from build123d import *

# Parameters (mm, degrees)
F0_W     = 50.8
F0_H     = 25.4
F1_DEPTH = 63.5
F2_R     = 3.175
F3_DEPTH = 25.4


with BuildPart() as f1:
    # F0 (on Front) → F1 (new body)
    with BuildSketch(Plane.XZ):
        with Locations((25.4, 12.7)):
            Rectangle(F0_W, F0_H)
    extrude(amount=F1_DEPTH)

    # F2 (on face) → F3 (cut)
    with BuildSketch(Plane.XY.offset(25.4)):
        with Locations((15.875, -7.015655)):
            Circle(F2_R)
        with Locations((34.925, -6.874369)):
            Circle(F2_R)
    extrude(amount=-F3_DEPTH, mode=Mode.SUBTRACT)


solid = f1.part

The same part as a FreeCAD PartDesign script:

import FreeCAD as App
import Part
import Sketcher

V = App.Vector
Q = App.Units.Quantity


def add_polygon(sketch, points):
    """Adds a closed chain of lines whose ends are joined by coincident constraints."""
    first, n = sketch.GeometryCount, len(points)
    for a, b in zip(points, points[1:] + points[:1]):
        sketch.addGeometry(Part.LineSegment(App.Vector(*a, 0), App.Vector(*b, 0)), False)
    for i in range(n):
        sketch.addConstraint(Sketcher.Constraint("Coincident", first + i, 2, first + (i + 1) % n, 1))

doc = App.newDocument("Part")
body = doc.addObject("PartDesign::Body", "Body")

sketch1 = doc.addObject("Sketcher::SketchObject", "Sketch")
body.addObject(sketch1)
sketch1.AttachmentSupport = (doc.XZ_Plane, [""])
sketch1.MapMode = "FlatFace"
add_polygon(sketch1, [(0, 25.4), (0, 0), (50.8, 0), (50.8, 25.4)])
sketch1.addConstraint([
    Sketcher.Constraint("Vertical", 0),
    Sketcher.Constraint("Horizontal", 1),
    Sketcher.Constraint("Vertical", 2),
    Sketcher.Constraint("Horizontal", 3),
    Sketcher.Constraint("Coincident", 0, 2, -1, 1),
    Sketcher.Constraint("DistanceX", 1, 1, 1, 2, Q("2 in")),
    Sketcher.Constraint("DistanceY", 0, 2, 0, 1, Q("1 in")),
])
pad1 = doc.addObject("PartDesign::Pad", "Pad")
body.addObject(pad1)
pad1.Profile = sketch1
pad1.Length = Q("2.5 in")

sketch2 = doc.addObject("Sketcher::SketchObject", "Sketch001")
body.addObject(sketch2)
sketch2.AttachmentSupport = (doc.XY_Plane, [""])
sketch2.MapMode = "FlatFace"
sketch2.AttachmentOffset = App.Placement(V(0, 0, 1 * 25.4), App.Rotation())
sketch2.addGeometry([
    Part.Circle(V(15.875, -7.015655, 0), V(0, 0, 1), 3.175),
    Part.Circle(V(34.925, -6.874369, 0), V(0, 0, 1), 3.175),
], False)
sketch2.addConstraint([
    Sketcher.Constraint("Equal", 0, 1),
    Sketcher.Constraint("Diameter", 0, Q("0.25 in")),
    Sketcher.Constraint("DistanceX", 0, 3, 1, 3, Q("0.75 in")),
    Sketcher.Constraint("DistanceX", -1, 1, 0, 3, Q("0.625 in")),
    Sketcher.Constraint("DistanceY", 1, 3, -1, 1, Q("6.874369 mm")),
    Sketcher.Constraint("DistanceY", 0, 3, -1, 1, Q("7.015655 mm")),
])
pocket1 = doc.addObject("PartDesign::Pocket", "Pocket")
body.addObject(pocket1)
pocket1.Profile = sketch2
pocket1.Length = Q("1 in")

doc.recompute()
